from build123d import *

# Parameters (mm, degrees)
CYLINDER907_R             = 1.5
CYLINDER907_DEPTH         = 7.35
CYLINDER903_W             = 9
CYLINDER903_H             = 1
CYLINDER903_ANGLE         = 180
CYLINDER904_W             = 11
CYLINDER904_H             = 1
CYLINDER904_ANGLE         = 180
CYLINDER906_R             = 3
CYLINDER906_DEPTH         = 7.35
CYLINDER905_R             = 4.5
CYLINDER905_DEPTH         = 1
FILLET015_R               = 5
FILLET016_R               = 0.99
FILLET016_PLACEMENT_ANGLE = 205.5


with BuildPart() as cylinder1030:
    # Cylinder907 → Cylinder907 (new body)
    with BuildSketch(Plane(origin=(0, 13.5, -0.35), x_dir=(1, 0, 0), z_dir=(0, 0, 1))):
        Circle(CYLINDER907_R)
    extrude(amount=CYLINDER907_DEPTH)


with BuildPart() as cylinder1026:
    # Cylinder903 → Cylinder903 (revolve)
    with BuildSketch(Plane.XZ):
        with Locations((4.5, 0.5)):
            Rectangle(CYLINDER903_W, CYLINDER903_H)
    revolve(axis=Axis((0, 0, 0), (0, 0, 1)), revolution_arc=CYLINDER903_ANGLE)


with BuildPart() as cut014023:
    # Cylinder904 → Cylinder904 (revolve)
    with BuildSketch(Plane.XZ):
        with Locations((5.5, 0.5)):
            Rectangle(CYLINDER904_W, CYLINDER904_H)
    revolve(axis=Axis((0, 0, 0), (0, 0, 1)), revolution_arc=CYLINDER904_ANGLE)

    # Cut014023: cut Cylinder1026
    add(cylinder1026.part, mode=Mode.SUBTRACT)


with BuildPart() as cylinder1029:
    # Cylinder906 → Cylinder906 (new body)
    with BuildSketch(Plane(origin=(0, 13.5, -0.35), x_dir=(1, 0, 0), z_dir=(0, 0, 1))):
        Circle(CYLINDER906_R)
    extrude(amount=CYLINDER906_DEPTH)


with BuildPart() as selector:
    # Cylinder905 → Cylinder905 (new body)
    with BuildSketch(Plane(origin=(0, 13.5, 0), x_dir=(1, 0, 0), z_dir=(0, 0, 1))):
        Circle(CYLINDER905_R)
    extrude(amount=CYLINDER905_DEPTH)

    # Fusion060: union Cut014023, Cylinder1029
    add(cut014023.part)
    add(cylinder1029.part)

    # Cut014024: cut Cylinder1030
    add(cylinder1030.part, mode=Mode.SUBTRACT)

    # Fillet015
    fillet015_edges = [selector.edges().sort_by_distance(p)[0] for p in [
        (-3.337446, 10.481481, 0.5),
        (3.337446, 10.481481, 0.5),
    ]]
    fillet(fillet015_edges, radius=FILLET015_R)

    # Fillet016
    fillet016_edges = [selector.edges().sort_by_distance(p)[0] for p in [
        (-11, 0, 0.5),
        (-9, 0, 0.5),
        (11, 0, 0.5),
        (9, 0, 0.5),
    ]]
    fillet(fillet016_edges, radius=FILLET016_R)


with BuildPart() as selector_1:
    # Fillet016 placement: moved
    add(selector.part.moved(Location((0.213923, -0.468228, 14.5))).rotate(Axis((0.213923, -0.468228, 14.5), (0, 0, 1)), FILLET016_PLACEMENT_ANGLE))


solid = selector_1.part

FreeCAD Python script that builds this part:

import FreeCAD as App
import Part
import Sketcher
Q = App.Units.Quantity


def edges_at(feature, points):
    """Names of the edges that pass closest to the given points."""
    edges = feature.Shape.Edges
    near = lambda p: min(range(len(edges)), key=lambda i: edges[i].distToShape(Part.Vertex(*p))[0])
    return sorted({f"Edge{near(p) + 1}" for p in points})


def add_polygon(sketch, points):
    """Adds a closed chain of lines whose ends are joined by coincident constraints."""
    first, n = sketch.GeometryCount, len(points)
    for a, b in zip(points, points[1:] + points[:1]):
        sketch.addGeometry(Part.LineSegment(App.Vector(*a, 0), App.Vector(*b, 0)), False)
    for i in range(n):
        sketch.addConstraint(Sketcher.Constraint("Coincident", first + i, 2, first + (i + 1) % n, 1))

doc = App.newDocument("Part")
body = doc.addObject("PartDesign::Body", "Body")

sketch1 = body.newObject("Sketcher::SketchObject", "Sketch")
sketch1.AttachmentSupport = (doc.getObject("XY_Plane"), [""])
sketch1.MapMode = "FlatFace"
sketch1.AttachmentOffset = App.Placement(App.Vector(0, 0, -0.35), App.Rotation())
sketch1.addGeometry(Part.Circle(App.Vector(0, 13.5, 0), App.Vector(0, 0, 1), 1.5), False)
sketch1.addConstraint(Sketcher.Constraint("PointOnObject", 0, 3, -2))
sketch1.addConstraint(Sketcher.Constraint("Diameter", 0, Q("3 mm")))
sketch1.addConstraint(Sketcher.Constraint("DistanceY", -1, 1, 0, 3, Q("13.5 mm")))
pad1 = body.newObject("PartDesign::Pad", "Pad")
pad1.Profile = sketch1
pad1.Length = 7.35
body2 = doc.addObject("PartDesign::Body", "Body001")

sketch2 = body2.newObject("Sketcher::SketchObject", "Sketch001")
sketch2.AttachmentSupport = (doc.getObject("XZ_Plane001"), [""])
sketch2.MapMode = "FlatFace"
add_polygon(sketch2, [(0, 1), (0, 0), (9, 0), (9, 1)])
sketch2.addConstraint(Sketcher.Constraint("Vertical", 0))
sketch2.addConstraint(Sketcher.Constraint("Horizontal", 1))
sketch2.addConstraint(Sketcher.Constraint("Vertical", 2))
sketch2.addConstraint(Sketcher.Constraint("Horizontal", 3))
sketch2.addConstraint(Sketcher.Constraint("Coincident", 0, 2, -1, 1))
sketch2.addConstraint(Sketcher.Constraint("DistanceX", 1, 1, 1, 2, Q("9 mm")))
sketch2.addConstraint(Sketcher.Constraint("DistanceY", 0, 2, 0, 1, Q("1 mm")))
revolution = body2.newObject("PartDesign::Revolution", "Revolution")
revolution.Profile = sketch2
revolution.ReferenceAxis = (sketch2, ["V_Axis"])
revolution.Angle = 180
body3 = doc.addObject("PartDesign::Body", "Body002")

sketch3 = body3.newObject("Sketcher::SketchObject", "Sketch002")
sketch3.AttachmentSupport = (doc.getObject("XZ_Plane002"), [""])
sketch3.MapMode = "FlatFace"
add_polygon(sketch3, [(0, 1), (0, 0), (11, 0), (11, 1)])
sketch3.addConstraint(Sketcher.Constraint("Vertical", 0))
sketch3.addConstraint(Sketcher.Constraint("Horizontal", 1))
sketch3.addConstraint(Sketcher.Constraint("Vertical", 2))
sketch3.addConstraint(Sketcher.Constraint("Horizontal", 3))
sketch3.addConstraint(Sketcher.Constraint("Coincident", 0, 2, -1, 1))
sketch3.addConstraint(Sketcher.Constraint("DistanceX", 1, 1, 1, 2, Q("11 mm")))
sketch3.addConstraint(Sketcher.Constraint("DistanceY", 0, 2, 0, 1, Q("1 mm")))
revolution2 = body3.newObject("PartDesign::Revolution", "Revolution001")
revolution2.Profile = sketch3
revolution2.ReferenceAxis = (sketch3, ["V_Axis"])
revolution2.Angle = 180
doc.recompute()

boolean = body3.newObject("PartDesign::Boolean", "Boolean")
boolean.Type = "Cut"
boolean.addObjects([body2])
body4 = doc.addObject("PartDesign::Body", "Body003")

sketch4 = body4.newObject("Sketcher::SketchObject", "Sketch003")
sketch4.AttachmentSupport = (doc.getObject("XY_Plane003"), [""])
sketch4.MapMode = "FlatFace"
sketch4.AttachmentOffset = App.Placement(App.Vector(0, 0, -0.35), App.Rotation())
sketch4.addGeometry(Part.Circle(App.Vector(0, 13.5, 0), App.Vector(0, 0, 1), 3), False)
sketch4.addConstraint(Sketcher.Constraint("PointOnObject", 0, 3, -2))
sketch4.addConstraint(Sketcher.Constraint("Diameter", 0, Q("6 mm")))
sketch4.addConstraint(Sketcher.Constraint("DistanceY", -1, 1, 0, 3, Q("13.5 mm")))
pad2 = body4.newObject("PartDesign::Pad", "Pad001")
pad2.Profile = sketch4
pad2.Length = 7.35
body5 = doc.addObject("PartDesign::Body", "Body004")

sketch5 = body5.newObject("Sketcher::SketchObject", "Sketch004")
sketch5.AttachmentSupport = (doc.getObject("XY_Plane004"), [""])
sketch5.MapMode = "FlatFace"
sketch5.addGeometry(Part.Circle(App.Vector(0, 13.5, 0), App.Vector(0, 0, 1), 4.5), False)
sketch5.addConstraint(Sketcher.Constraint("PointOnObject", 0, 3, -2))
sketch5.addConstraint(Sketcher.Constraint("Diameter", 0, Q("9 mm")))
sketch5.addConstraint(Sketcher.Constraint("DistanceY", -1, 1, 0, 3, Q("13.5 mm")))
pad3 = body5.newObject("PartDesign::Pad", "Pad002")
pad3.Profile = sketch5
pad3.Length = 1
doc.recompute()

boolean2 = body5.newObject("PartDesign::Boolean", "Boolean001")
boolean2.Type = "Fuse"
boolean2.addObjects([body3])
doc.recompute()

boolean3 = body5.newObject("PartDesign::Boolean", "Boolean002")
boolean3.Type = "Fuse"
boolean3.addObjects([body4])
doc.recompute()

boolean4 = body5.newObject("PartDesign::Boolean", "Boolean003")
boolean4.Type = "Cut"
boolean4.addObjects([body])
doc.recompute()

fillet = body5.newObject("PartDesign::Fillet", "Fillet")
fillet.Base = (boolean4, edges_at(boolean4, [(-3.337, 10.481, 0.5), (3.337, 10.481, 0.5)]))
fillet.Radius = 5
doc.recompute()

fillet2 = body5.newObject("PartDesign::Fillet", "Fillet001")
fillet2.Base = (fillet, edges_at(fillet, [
    (-11, 0, 0.5),
    (-9, 0, 0.5),
    (11, 0, 0.5),
    (9, 0, 0.5),
]))
fillet2.Radius = 0.99
body6 = doc.addObject("PartDesign::Body", "Body005")
doc.recompute()

body5.Placement = App.Placement(App.Vector(0.213923, -0.468228, 14.5), App.Rotation(App.Vector(0, 0, 1), 205.5))
boolean5 = body6.newObject("PartDesign::Boolean", "Boolean004")
boolean5.Type = "Fuse"
boolean5.addObjects([body5])

doc.recompute()
